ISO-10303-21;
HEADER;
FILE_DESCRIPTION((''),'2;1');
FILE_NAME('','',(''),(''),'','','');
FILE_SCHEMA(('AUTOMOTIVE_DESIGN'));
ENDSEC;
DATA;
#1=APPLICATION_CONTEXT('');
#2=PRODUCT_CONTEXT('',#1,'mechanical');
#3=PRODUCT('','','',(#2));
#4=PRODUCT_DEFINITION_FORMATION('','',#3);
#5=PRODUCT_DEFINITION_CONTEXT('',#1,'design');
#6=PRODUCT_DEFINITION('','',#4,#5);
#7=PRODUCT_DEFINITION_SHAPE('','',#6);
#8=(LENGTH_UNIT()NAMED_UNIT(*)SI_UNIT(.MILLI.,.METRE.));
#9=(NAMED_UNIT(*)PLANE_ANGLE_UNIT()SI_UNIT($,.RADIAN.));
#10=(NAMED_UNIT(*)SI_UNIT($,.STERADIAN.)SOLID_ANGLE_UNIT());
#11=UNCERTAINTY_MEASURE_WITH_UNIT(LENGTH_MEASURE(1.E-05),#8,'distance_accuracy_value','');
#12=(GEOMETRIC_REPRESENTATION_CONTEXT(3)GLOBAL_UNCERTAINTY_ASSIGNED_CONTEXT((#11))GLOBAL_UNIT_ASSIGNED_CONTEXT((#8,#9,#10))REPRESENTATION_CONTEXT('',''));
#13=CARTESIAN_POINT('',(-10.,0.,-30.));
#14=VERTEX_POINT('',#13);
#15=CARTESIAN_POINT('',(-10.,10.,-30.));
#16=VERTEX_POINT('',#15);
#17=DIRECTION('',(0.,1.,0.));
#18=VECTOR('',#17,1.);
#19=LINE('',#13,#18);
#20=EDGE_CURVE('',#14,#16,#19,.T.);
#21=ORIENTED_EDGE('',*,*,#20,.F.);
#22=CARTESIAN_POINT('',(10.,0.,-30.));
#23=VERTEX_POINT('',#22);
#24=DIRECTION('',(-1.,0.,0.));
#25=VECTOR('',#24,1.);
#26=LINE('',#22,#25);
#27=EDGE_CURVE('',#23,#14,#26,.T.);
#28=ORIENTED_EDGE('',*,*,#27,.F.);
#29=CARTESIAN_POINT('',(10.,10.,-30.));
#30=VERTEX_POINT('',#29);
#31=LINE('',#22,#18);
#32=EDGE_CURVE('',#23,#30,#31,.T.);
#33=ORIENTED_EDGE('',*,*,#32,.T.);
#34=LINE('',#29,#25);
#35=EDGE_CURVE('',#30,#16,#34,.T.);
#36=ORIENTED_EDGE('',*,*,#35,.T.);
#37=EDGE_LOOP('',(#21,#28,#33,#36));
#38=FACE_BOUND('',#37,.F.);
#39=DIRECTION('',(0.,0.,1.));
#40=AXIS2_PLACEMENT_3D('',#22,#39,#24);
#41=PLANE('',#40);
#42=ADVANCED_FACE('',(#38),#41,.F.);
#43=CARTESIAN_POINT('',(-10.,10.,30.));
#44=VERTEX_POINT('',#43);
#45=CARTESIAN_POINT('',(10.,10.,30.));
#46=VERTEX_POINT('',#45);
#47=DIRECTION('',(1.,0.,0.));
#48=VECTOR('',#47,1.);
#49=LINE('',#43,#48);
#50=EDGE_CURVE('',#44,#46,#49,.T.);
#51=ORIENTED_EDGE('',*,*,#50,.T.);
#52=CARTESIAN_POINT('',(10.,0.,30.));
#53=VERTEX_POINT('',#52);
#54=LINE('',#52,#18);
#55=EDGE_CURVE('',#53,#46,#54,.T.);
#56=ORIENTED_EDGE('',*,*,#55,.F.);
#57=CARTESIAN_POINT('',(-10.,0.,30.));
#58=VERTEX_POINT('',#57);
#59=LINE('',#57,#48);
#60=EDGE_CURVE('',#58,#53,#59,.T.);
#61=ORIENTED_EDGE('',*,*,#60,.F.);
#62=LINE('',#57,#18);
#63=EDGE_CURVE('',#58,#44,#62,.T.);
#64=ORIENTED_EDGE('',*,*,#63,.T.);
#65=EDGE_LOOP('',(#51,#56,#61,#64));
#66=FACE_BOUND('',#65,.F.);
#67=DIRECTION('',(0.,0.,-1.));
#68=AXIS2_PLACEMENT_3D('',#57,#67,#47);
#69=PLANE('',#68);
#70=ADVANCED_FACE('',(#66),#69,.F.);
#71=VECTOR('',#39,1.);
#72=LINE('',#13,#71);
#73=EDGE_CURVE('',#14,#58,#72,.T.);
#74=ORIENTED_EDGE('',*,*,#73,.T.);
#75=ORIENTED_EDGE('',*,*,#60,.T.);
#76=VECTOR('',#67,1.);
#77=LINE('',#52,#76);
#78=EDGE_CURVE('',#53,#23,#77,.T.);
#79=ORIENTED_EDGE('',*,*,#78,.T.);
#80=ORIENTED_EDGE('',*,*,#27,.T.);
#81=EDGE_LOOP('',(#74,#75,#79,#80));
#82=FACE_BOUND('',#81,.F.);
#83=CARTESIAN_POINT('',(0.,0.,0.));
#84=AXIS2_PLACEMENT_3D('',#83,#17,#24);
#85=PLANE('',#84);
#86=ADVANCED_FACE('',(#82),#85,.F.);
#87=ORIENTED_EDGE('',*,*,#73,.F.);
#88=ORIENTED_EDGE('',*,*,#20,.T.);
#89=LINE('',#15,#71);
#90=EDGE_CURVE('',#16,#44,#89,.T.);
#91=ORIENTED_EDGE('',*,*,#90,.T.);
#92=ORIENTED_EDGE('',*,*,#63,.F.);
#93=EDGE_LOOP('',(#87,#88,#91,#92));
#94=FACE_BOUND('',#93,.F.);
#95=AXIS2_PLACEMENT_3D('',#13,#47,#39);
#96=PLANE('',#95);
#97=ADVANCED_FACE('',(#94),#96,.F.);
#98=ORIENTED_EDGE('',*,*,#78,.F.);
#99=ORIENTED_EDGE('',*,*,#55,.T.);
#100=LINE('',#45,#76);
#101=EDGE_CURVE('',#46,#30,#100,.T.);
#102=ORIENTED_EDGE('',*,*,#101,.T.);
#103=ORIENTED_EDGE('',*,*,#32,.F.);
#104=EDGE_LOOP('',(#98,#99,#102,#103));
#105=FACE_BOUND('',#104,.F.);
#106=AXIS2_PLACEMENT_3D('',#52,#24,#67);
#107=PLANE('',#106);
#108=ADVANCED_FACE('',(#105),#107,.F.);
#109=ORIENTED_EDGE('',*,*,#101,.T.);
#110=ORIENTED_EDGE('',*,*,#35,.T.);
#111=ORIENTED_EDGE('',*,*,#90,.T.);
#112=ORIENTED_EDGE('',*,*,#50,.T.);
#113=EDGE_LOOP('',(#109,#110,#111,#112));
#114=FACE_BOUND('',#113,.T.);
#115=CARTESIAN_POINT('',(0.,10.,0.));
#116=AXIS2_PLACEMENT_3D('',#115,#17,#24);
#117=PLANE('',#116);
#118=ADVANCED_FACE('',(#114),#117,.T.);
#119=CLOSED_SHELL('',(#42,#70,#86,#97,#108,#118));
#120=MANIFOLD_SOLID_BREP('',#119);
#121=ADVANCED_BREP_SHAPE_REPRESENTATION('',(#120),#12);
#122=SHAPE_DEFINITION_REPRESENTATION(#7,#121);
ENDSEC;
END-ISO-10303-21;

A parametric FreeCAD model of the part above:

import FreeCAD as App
import Part
import Sketcher
Q = App.Units.Quantity

doc = App.newDocument("Part")
body = doc.addObject("PartDesign::Body", "Body")

sketch1 = body.newObject("Sketcher::SketchObject", "Sketch")
sketch1.AttachmentSupport = (doc.getObject("XZ_Plane"), [""])
sketch1.MapMode = "FlatFace"
sketch1.addGeometry(Part.LineSegment(App.Vector(10, 30, 0), App.Vector(10, -30, 0)), False)
sketch1.addGeometry(Part.LineSegment(App.Vector(10, -30, 0), App.Vector(-10, -30, 0)), False)
sketch1.addGeometry(Part.LineSegment(App.Vector(-10, -30, 0), App.Vector(-10, 30, 0)), False)
sketch1.addGeometry(Part.LineSegment(App.Vector(-10, 30, 0), App.Vector(10, 30, 0)), False)
sketch1.addConstraint(Sketcher.Constraint("Coincident", 0, 2, 1, 1))
sketch1.addConstraint(Sketcher.Constraint("Coincident", 1, 2, 2, 1))
sketch1.addConstraint(Sketcher.Constraint("Coincident", 2, 2, 3, 1))
sketch1.addConstraint(Sketcher.Constraint("Coincident", 3, 2, 0, 1))
sketch1.addConstraint(Sketcher.Constraint("Vertical", 0))
sketch1.addConstraint(Sketcher.Constraint("Horizontal", 1))
sketch1.addConstraint(Sketcher.Constraint("Vertical", 2))
sketch1.addConstraint(Sketcher.Constraint("Horizontal", 3))
sketch1.addConstraint(Sketcher.Constraint("Symmetric", 0, 2, 2, 2, -1, 1))
sketch1.addConstraint(Sketcher.Constraint("DistanceX", 1, 2, 1, 1, Q("20 mm")))
sketch1.addConstraint(Sketcher.Constraint("DistanceY", 0, 2, 0, 1, Q("60 mm")))
pad1 = body.newObject("PartDesign::Pad", "Pad")
pad1.Profile = sketch1
pad1.Length = 10
pad1.Reversed = True

doc.recompute()
